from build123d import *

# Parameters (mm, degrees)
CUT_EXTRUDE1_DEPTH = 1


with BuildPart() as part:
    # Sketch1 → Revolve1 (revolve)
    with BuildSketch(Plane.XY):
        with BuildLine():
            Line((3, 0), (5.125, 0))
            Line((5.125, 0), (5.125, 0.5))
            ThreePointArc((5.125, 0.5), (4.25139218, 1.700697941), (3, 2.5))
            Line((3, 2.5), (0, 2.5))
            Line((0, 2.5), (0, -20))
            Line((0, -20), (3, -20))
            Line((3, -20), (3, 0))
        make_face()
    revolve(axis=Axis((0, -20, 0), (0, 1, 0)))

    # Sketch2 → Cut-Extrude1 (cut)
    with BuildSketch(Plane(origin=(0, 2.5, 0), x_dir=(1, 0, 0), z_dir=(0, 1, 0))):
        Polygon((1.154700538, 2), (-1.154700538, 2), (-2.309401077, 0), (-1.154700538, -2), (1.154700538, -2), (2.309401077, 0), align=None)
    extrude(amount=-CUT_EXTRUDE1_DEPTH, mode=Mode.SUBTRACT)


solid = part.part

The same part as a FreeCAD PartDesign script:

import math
import FreeCAD as App
import Part
import Sketcher
from FreeCAD import Vector
Q = App.Units.Quantity

doc = App.newDocument("Part")
body = doc.addObject("PartDesign::Body", "Body")

sketch1 = body.newObject("Sketcher::SketchObject", "Sketch")
sketch1.AttachmentSupport = (doc.getObject("XY_Plane"), [""])
sketch1.MapMode = "FlatFace"
sketch1.addGeometry(Part.LineSegment(Vector(3, 0, 0), Vector(5.1, 0, 0)), False)
sketch1.addGeometry(Part.LineSegment(Vector(5.1, 0, 0), Vector(5.1, 0.5, 0)), False)
sketch1.addGeometry(Part.ArcOfCircle(Part.Circle(Vector(1.5, -1.2, 0), Vector(0, 0, 1), 4), math.radians(25), math.radians(68)), False)
sketch1.addGeometry(Part.LineSegment(Vector(3, 2.5, 0), Vector(0, 2.5, 0)), False)
sketch1.addGeometry(Part.LineSegment(Vector(0, 2.5, 0), Vector(0, -20, 0)), False)
sketch1.addGeometry(Part.LineSegment(Vector(0, -20, 0), Vector(3, -20, 0)), False)
sketch1.addGeometry(Part.LineSegment(Vector(3, -20, 0), Vector(3, 0, 0)), False)
sketch1.addConstraint(Sketcher.Constraint("Coincident", 0, 2, 1, 1))
sketch1.addConstraint(Sketcher.Constraint("Coincident", 1, 2, 2, 1))
sketch1.addConstraint(Sketcher.Constraint("Coincident", 2, 2, 3, 1))
sketch1.addConstraint(Sketcher.Constraint("Coincident", 3, 2, 4, 1))
sketch1.addConstraint(Sketcher.Constraint("Coincident", 4, 2, 5, 1))
sketch1.addConstraint(Sketcher.Constraint("Coincident", 5, 2, 6, 1))
sketch1.addConstraint(Sketcher.Constraint("Coincident", 6, 2, 0, 1))
sketch1.addConstraint(Sketcher.Constraint("Horizontal", 0))
sketch1.addConstraint(Sketcher.Constraint("Vertical", 1))
sketch1.addConstraint(Sketcher.Constraint("Horizontal", 3))
sketch1.addConstraint(Sketcher.Constraint("Vertical", 4))
sketch1.addConstraint(Sketcher.Constraint("Horizontal", 5))
sketch1.addConstraint(Sketcher.Constraint("Vertical", 6))
sketch1.addConstraint(Sketcher.Constraint("PointOnObject", 0, 2, -1))
sketch1.addConstraint(Sketcher.Constraint("PointOnObject", 3, 2, -2))
sketch1.addConstraint(Sketcher.Constraint("Vertical", 2, 2, 5, 2))
sketch1.addConstraint(Sketcher.Constraint("Radius", 2, 4.0))
sketch1.addConstraint(Sketcher.Constraint("DistanceX", 3, 2, 3, 1, 3.0))
sketch1.addConstraint(Sketcher.Constraint("DistanceY", 6, 1, 6, 2, 20.0))
sketch1.addConstraint(Sketcher.Constraint("DistanceY", 1, 1, 1, 2, 0.5))
sketch1.addConstraint(Sketcher.Constraint("DistanceY", 4, 2, 4, 1, 22.5))
sketch1.addConstraint(Sketcher.Constraint("DistanceX", 0, 1, 0, 2, 2.125))
revolution = body.newObject("PartDesign::Revolution", "Revolution")
revolution.Profile = sketch1
revolution.ReferenceAxis = (sketch1, ["V_Axis"])
revolution.Angle = 360

sketch2 = body.newObject("Sketcher::SketchObject", "Sketch001")
sketch2.AttachmentSupport = (doc.getObject("XZ_Plane"), [""])
sketch2.MapMode = "FlatFace"
sketch2.AttachmentOffset = App.Placement(Vector(0, 0, -2.5), App.Rotation())
sketch2.addGeometry(Part.LineSegment(Vector(1.2, -2, 0), Vector(-1.2, -2, 0)), False)
sketch2.addGeometry(Part.LineSegment(Vector(-1.2, -2, 0), Vector(-2.3, 0, 0)), False)
sketch2.addGeometry(Part.LineSegment(Vector(-2.3, 0, 0), Vector(-1.2, 2, 0)), False)
sketch2.addGeometry(Part.LineSegment(Vector(-1.2, 2, 0), Vector(1.2, 2, 0)), False)
sketch2.addGeometry(Part.LineSegment(Vector(1.2, 2, 0), Vector(2.3, 0, 0)), False)
sketch2.addGeometry(Part.LineSegment(Vector(2.3, 0, 0), Vector(1.2, -2, 0)), False)
sketch2.addConstraint(Sketcher.Constraint("Coincident", 0, 2, 1, 1))
sketch2.addConstraint(Sketcher.Constraint("Coincident", 1, 2, 2, 1))
sketch2.addConstraint(Sketcher.Constraint("Coincident", 2, 2, 3, 1))
sketch2.addConstraint(Sketcher.Constraint("Coincident", 3, 2, 4, 1))
sketch2.addConstraint(Sketcher.Constraint("Coincident", 4, 2, 5, 1))
sketch2.addConstraint(Sketcher.Constraint("Coincident", 5, 2, 0, 1))
sketch2.addConstraint(Sketcher.Constraint("Horizontal", 0))
sketch2.addConstraint(Sketcher.Constraint("Horizontal", 3))
sketch2.addConstraint(Sketcher.Constraint("Symmetric", 0, 2, 3, 2, -1, 1))
sketch2.addConstraint(Sketcher.Constraint("Symmetric", 1, 2, 4, 2, -1, 1))
sketch2.addConstraint(Sketcher.Constraint("PointOnObject", 1, 2, -1))
sketch2.addConstraint(Sketcher.Constraint("Parallel", 2, 5))
sketch2.addConstraint(Sketcher.Constraint("Vertical", 0, 2, 2, 2))
sketch2.addConstraint(Sketcher.Constraint("Angle", 1, Q("120 deg")))
sketch2.addConstraint(Sketcher.Constraint("DistanceY", 0, 2, -1, 1, 2.0))
sketch2.addConstraint(Sketcher.Constraint("DistanceX", 0, 2, 0, 1, 2.309401))
pocket1 = body.newObject("PartDesign::Pocket", "Pocket")
pocket1.Profile = sketch2
pocket1.Length = 1
pocket1.Reversed = True

doc.recompute()
